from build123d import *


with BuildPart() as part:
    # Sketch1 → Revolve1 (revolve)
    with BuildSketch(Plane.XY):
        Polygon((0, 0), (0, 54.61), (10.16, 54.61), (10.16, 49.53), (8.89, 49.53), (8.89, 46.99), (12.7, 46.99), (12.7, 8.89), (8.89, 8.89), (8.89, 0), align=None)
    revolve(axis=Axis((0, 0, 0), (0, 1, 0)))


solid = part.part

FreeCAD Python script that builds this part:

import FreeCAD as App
import Part
import Sketcher

V = App.Vector
Q = App.Units.Quantity

doc = App.newDocument("Part")
body = doc.addObject("PartDesign::Body", "Body")

# Sketch on XY plane
sketch1 = body.newObject("Sketcher::SketchObject", "Sketch")
sketch1.AttachmentSupport = (doc.getObject("XY_Plane"), [""])
sketch1.MapMode = "FlatFace"
sketch1.addGeometry([
    Part.LineSegment(V(0, 54.6, 0), V(0, 0, 0)),  # 0
    Part.LineSegment(V(0, 0, 0), V(8.9, 0, 0)),  # 1
    Part.LineSegment(V(8.9, 0, 0), V(8.9, 8.9, 0)),  # 2
    Part.LineSegment(V(8.9, 8.9, 0), V(12.7, 8.9, 0)),  # 3
    Part.LineSegment(V(12.7, 8.9, 0), V(12.7, 47, 0)),  # 4
    Part.LineSegment(V(12.7, 47, 0), V(8.9, 47, 0)),  # 5
    Part.LineSegment(V(8.9, 47, 0), V(8.9, 49.5, 0)),  # 6
    Part.LineSegment(V(8.9, 49.5, 0), V(10.2, 49.5, 0)),  # 7
    Part.LineSegment(V(10.2, 49.5, 0), V(10.2, 54.6, 0)),  # 8
    Part.LineSegment(V(10.2, 54.6, 0), V(0, 54.6, 0)),  # 9
], False)
sketch1.addConstraint([
    Sketcher.Constraint("Coincident", 0, 2, 1, 1),
    Sketcher.Constraint("Coincident", 1, 2, 2, 1),
    Sketcher.Constraint("Coincident", 2, 2, 3, 1),
    Sketcher.Constraint("Coincident", 3, 2, 4, 1),
    Sketcher.Constraint("Coincident", 4, 2, 5, 1),
    Sketcher.Constraint("Coincident", 5, 2, 6, 1),
    Sketcher.Constraint("Coincident", 6, 2, 7, 1),
    Sketcher.Constraint("Coincident", 7, 2, 8, 1),
    Sketcher.Constraint("Coincident", 8, 2, 9, 1),
    Sketcher.Constraint("Coincident", 9, 2, 0, 1),
    Sketcher.Constraint("Vertical", 0),
    Sketcher.Constraint("Horizontal", 1),
    Sketcher.Constraint("Vertical", 2),
    Sketcher.Constraint("Horizontal", 3),
    Sketcher.Constraint("Vertical", 4),
    Sketcher.Constraint("Horizontal", 5),
    Sketcher.Constraint("Vertical", 6),
    Sketcher.Constraint("Horizontal", 7),
    Sketcher.Constraint("Vertical", 8),
    Sketcher.Constraint("Horizontal", 9),
    Sketcher.Constraint("Coincident", 0, 2, -1, 1),
    Sketcher.Constraint("Vertical", 2, 2, 5, 2),
    Sketcher.Constraint("Equal", 1, 2),
    Sketcher.Constraint("DistanceX", 9, 2, 9, 1, Q("0.4 in")),
    Sketcher.Constraint("DistanceY", 4, 1, 4, 2, Q("1.5 in")),
    Sketcher.Constraint("DistanceY", 6, 1, 6, 2, Q("0.1 in")),
    Sketcher.Constraint("DistanceY", 8, 1, 8, 2, Q("0.2 in")),
    Sketcher.Constraint("DistanceX", 1, 1, 1, 2, Q("0.35 in")),
    Sketcher.Constraint("DistanceX", 3, 1, 3, 2, Q("0.15 in")),
])
revolution = body.newObject("PartDesign::Revolution", "Revolution")
revolution.Profile = sketch1
revolution.ReferenceAxis = (sketch1, ["V_Axis"])
revolution.Angle = 360

doc.recompute()
